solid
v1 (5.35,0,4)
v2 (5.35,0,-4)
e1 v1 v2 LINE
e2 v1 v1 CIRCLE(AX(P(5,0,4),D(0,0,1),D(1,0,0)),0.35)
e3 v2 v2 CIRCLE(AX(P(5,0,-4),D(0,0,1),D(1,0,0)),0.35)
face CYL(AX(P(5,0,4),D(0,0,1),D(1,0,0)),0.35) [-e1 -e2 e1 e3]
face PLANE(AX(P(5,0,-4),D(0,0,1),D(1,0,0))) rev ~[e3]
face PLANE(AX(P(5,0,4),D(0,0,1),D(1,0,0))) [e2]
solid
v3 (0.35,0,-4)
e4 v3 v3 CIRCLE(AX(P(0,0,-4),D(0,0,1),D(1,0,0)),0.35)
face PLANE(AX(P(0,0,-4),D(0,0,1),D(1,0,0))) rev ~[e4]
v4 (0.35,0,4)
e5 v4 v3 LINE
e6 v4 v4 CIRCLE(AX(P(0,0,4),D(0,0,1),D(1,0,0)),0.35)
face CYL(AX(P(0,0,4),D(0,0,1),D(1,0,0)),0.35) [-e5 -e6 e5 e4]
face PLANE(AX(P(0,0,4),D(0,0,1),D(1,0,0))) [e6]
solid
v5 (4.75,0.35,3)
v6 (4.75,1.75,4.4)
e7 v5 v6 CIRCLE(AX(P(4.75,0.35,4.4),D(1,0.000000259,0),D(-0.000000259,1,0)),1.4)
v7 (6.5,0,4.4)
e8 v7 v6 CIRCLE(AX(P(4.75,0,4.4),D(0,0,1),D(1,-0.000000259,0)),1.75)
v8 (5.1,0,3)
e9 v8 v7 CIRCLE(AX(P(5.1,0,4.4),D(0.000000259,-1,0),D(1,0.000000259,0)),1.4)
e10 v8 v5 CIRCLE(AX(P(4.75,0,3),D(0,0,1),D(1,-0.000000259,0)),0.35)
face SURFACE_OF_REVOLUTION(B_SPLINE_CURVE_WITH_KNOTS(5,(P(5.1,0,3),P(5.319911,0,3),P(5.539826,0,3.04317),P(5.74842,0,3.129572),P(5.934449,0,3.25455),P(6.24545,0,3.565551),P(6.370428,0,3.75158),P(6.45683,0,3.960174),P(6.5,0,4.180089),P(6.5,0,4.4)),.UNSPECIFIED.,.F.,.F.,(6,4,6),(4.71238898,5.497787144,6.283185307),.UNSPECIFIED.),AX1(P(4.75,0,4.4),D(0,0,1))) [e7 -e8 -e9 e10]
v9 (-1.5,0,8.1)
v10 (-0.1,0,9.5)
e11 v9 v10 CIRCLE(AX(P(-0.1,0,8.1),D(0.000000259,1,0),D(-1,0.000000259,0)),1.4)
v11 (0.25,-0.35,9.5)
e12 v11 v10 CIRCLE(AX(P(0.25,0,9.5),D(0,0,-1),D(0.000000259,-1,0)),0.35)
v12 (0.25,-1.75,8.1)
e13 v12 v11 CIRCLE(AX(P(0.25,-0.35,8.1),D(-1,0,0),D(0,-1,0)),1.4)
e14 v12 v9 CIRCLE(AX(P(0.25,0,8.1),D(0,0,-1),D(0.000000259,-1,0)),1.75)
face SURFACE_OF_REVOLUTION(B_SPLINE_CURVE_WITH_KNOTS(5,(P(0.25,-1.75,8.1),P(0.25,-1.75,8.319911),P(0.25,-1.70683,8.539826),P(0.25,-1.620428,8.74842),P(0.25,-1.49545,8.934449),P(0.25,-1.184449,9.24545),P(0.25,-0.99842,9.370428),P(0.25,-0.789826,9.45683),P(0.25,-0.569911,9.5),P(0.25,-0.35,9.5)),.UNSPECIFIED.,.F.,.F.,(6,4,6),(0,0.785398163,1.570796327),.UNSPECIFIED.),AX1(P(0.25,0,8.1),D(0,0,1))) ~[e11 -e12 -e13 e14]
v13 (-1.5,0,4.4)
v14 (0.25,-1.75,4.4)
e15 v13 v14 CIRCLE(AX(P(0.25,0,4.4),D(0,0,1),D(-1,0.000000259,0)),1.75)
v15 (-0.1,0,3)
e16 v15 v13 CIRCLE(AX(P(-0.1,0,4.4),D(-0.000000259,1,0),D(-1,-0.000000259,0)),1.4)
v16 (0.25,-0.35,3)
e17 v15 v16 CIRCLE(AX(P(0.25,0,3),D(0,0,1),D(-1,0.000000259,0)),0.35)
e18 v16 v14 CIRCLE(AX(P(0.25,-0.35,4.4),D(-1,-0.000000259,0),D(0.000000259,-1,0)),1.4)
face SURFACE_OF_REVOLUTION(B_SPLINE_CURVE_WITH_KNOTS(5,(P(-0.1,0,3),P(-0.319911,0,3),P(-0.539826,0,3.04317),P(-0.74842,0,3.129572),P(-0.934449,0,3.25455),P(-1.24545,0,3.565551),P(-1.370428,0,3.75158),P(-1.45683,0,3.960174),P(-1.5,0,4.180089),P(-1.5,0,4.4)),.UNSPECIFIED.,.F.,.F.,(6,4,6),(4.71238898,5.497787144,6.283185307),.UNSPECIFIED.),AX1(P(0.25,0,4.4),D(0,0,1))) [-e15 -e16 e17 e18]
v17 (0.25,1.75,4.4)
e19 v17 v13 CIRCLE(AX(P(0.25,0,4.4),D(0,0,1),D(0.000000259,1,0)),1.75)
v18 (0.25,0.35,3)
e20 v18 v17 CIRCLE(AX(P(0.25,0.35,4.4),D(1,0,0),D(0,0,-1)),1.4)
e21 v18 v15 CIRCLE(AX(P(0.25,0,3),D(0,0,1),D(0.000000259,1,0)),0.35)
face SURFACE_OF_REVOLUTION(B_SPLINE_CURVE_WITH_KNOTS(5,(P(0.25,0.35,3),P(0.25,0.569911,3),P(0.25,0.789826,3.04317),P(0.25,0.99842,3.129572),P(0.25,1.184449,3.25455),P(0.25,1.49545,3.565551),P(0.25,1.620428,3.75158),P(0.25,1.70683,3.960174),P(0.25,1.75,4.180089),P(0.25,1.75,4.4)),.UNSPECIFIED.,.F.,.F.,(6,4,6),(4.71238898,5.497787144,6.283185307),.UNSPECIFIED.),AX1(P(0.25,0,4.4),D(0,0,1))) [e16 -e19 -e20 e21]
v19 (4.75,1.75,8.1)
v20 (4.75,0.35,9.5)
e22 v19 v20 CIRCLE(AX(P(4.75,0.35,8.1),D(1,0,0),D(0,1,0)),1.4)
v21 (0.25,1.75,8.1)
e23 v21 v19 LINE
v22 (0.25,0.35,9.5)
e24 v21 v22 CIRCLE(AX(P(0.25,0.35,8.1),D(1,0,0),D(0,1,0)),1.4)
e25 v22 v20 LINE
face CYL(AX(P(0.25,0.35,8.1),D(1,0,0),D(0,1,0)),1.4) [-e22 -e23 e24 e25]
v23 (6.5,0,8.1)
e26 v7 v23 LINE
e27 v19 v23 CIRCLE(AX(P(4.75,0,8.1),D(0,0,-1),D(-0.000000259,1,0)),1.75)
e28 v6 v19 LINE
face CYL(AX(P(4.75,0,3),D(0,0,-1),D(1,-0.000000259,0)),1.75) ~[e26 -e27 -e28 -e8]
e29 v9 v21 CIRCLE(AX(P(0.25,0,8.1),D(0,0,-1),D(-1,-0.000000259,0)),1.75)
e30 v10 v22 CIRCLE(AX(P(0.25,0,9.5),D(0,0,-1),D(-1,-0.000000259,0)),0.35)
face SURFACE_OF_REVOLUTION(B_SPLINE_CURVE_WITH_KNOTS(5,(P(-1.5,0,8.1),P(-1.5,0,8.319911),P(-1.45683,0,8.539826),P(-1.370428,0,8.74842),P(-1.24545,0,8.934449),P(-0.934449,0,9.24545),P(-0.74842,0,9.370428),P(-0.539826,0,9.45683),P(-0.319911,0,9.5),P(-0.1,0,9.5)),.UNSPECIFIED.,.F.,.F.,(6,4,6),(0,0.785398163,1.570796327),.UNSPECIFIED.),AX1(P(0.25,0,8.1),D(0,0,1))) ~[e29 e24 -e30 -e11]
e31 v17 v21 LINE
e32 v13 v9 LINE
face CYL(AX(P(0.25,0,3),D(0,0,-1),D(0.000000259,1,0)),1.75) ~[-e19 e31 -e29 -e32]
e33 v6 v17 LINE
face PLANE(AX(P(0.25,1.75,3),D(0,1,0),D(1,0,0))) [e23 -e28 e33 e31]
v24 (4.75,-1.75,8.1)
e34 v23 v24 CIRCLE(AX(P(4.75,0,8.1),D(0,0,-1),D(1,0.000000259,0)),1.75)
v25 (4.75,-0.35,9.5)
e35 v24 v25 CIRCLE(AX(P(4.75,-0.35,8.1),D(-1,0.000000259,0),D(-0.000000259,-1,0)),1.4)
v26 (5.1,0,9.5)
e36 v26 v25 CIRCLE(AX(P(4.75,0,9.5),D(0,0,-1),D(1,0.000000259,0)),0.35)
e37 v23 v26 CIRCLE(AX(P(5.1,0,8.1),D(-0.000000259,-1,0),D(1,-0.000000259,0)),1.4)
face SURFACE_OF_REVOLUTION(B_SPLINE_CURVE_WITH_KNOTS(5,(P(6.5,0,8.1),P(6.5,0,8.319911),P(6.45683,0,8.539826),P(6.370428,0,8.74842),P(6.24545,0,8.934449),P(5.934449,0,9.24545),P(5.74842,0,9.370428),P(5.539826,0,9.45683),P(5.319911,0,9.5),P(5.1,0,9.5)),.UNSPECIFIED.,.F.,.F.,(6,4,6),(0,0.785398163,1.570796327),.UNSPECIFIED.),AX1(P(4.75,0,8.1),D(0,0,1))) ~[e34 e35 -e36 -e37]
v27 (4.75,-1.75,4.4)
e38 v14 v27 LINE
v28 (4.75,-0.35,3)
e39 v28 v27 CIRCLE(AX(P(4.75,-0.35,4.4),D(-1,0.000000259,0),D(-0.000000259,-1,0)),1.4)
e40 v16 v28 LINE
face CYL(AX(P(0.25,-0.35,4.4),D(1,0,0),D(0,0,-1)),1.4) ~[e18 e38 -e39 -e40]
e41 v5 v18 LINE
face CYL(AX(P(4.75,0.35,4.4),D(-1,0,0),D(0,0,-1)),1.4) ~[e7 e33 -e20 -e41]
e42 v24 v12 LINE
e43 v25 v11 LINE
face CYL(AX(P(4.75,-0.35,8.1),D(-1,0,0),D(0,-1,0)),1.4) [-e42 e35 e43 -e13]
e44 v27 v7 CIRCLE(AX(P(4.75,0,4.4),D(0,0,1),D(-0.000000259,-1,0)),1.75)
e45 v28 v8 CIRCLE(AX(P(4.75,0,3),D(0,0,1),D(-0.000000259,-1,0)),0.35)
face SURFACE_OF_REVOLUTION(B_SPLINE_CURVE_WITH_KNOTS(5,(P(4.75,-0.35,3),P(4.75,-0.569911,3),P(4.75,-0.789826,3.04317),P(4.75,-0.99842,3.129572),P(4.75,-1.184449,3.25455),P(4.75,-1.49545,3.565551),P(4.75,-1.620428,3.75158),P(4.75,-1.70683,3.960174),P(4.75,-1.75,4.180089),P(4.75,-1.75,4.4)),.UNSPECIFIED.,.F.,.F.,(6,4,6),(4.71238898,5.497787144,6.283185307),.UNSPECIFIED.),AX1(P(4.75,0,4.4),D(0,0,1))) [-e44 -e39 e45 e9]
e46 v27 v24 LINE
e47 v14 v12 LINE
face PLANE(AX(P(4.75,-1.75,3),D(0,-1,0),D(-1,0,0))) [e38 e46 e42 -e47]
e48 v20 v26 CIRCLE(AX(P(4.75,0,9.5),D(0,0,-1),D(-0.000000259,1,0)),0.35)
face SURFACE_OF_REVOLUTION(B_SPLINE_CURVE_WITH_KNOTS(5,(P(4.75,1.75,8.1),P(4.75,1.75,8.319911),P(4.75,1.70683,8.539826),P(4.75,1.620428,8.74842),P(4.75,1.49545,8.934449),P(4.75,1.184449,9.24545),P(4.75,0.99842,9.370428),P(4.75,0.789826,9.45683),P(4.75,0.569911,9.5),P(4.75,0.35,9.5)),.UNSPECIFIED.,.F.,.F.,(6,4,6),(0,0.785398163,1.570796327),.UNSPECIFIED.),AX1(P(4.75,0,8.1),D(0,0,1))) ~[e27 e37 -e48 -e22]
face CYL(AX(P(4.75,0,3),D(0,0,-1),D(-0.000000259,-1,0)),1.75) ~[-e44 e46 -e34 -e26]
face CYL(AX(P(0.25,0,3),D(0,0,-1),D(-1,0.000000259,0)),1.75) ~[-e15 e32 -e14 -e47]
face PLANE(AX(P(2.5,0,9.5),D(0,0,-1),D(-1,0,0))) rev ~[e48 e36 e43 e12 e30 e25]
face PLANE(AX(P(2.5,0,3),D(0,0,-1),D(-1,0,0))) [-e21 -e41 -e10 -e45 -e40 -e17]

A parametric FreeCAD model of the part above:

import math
import FreeCAD as App
import Part
import Sketcher
from FreeCAD import Vector
Q = App.Units.Quantity


def edges_at(feature, points):
    """Names of the edges that pass closest to the given points."""
    edges = feature.Shape.Edges
    near = lambda p: min(range(len(edges)), key=lambda i: edges[i].distToShape(Part.Vertex(*p))[0])
    return sorted({f"Edge{near(p) + 1}" for p in points})

doc = App.newDocument("Part")
body = doc.addObject("PartDesign::Body", "Body")
body.AllowCompound = True

sketch1 = body.newObject("Sketcher::SketchObject", "Sketch")
sketch1.AttachmentSupport = (doc.getObject("XY_Plane"), [""])
sketch1.MapMode = "FlatFace"
sketch1.AttachmentOffset = App.Placement(Vector(0, 0, 4), App.Rotation())
sketch1.addGeometry([
    Part.Circle(Vector(0, 0, 0), Vector(0, 0, 1), 0.35),
    Part.Circle(Vector(5, 0, 0), Vector(0, 0, 1), 0.35),
], False)
sketch1.addConstraint([
    Sketcher.Constraint("Coincident", 0, 3, -1, 1),
    Sketcher.Constraint("Equal", 0, 1),
    Sketcher.Constraint("PointOnObject", 1, 3, -1),
    Sketcher.Constraint("Diameter", 0, Q("0.7 mm")),
    Sketcher.Constraint("DistanceX", -1, 1, 1, 3, Q("5 mm")),
])
pad1 = body.newObject("PartDesign::Pad", "Pad")
pad1.Profile = sketch1
pad1.Length = 8
pad1.Reversed = True
body2 = doc.addObject("PartDesign::Body", "Body001")

sketch2 = body2.newObject("Sketcher::SketchObject", "Sketch001")
sketch2.AttachmentSupport = (doc.getObject("XY_Plane001"), [""])
sketch2.MapMode = "FlatFace"
sketch2.AttachmentOffset = App.Placement(Vector(0, 0, 3), App.Rotation())
sketch2.addGeometry([
    Part.LineSegment(Vector(4.8, 1.8, 0), Vector(0.2, 1.8, 0)),
    Part.ArcOfCircle(Part.Circle(Vector(0.2, 0, 0), Vector(0, 0, 1), 1.7), math.radians(90), math.radians(180)),
    Part.ArcOfCircle(Part.Circle(Vector(0.2, 0, 0), Vector(0, 0, 1), 1.7), math.radians(180), math.radians(270)),
    Part.LineSegment(Vector(0.2, -1.8, 0), Vector(4.8, -1.8, 0)),
    Part.ArcOfCircle(Part.Circle(Vector(4.8, 0, 0), Vector(0, 0, 1), 1.7), math.radians(-90), math.radians(0)),
    Part.ArcOfCircle(Part.Circle(Vector(4.8, 0, 0), Vector(0, 0, 1), 1.7), math.radians(0), math.radians(90)),
], False)
sketch2.addConstraint([
    Sketcher.Constraint("Tangent", 0, 2, 1, 1),
    Sketcher.Constraint("Tangent", 1, 2, 2, 1),
    Sketcher.Constraint("Tangent", 2, 2, 3, 1),
    Sketcher.Constraint("Tangent", 3, 2, 4, 1),
    Sketcher.Constraint("Tangent", 4, 2, 5, 1),
    Sketcher.Constraint("Tangent", 5, 2, 0, 1),
    Sketcher.Constraint("Horizontal", 0),
    Sketcher.Constraint("Horizontal", 3),
    Sketcher.Constraint("Equal", 1, 2),
    Sketcher.Constraint("Equal", 2, 4),
    Sketcher.Constraint("PointOnObject", 1, 3, -1),
    Sketcher.Constraint("PointOnObject", 1, 2, -1),
    Sketcher.Constraint("PointOnObject", 4, 2, -1),
    Sketcher.Constraint("Radius", 1, Q("1.75 mm")),
    Sketcher.Constraint("DistanceX", 0, 2, 0, 1, Q("4.5 mm")),
    Sketcher.Constraint("DistanceX", 1, 2, -1, 1, Q("1.5 mm")),
])
pad2 = body2.newObject("PartDesign::Pad", "Pad001")
pad2.Profile = sketch2
pad2.Length = 6.5
doc.recompute()

fillet = body2.newObject("PartDesign::Fillet", "Fillet")
fillet.Base = (pad2, edges_at(pad2, [
    (2.5, 1.75, 9.5),
    (-0.987, 1.237, 9.5),
    (-0.987, -1.237, 9.5),
    (2.5, -1.75, 9.5),
    (5.987, -1.237, 9.5),
    (5.987, 1.237, 9.5),
]))
fillet.Radius = 1.4
doc.recompute()

fillet2 = body2.newObject("PartDesign::Fillet", "Fillet001")
fillet2.Base = (fillet, edges_at(fillet, [
    (5.987, -1.237, 3),
    (5.987, 1.237, 3),
    (2.5, 1.75, 3),
    (2.5, -1.75, 3),
    (-0.987, -1.237, 3),
    (-0.987, 1.237, 3),
]))
fillet2.Radius = 1.4

doc.recompute()
